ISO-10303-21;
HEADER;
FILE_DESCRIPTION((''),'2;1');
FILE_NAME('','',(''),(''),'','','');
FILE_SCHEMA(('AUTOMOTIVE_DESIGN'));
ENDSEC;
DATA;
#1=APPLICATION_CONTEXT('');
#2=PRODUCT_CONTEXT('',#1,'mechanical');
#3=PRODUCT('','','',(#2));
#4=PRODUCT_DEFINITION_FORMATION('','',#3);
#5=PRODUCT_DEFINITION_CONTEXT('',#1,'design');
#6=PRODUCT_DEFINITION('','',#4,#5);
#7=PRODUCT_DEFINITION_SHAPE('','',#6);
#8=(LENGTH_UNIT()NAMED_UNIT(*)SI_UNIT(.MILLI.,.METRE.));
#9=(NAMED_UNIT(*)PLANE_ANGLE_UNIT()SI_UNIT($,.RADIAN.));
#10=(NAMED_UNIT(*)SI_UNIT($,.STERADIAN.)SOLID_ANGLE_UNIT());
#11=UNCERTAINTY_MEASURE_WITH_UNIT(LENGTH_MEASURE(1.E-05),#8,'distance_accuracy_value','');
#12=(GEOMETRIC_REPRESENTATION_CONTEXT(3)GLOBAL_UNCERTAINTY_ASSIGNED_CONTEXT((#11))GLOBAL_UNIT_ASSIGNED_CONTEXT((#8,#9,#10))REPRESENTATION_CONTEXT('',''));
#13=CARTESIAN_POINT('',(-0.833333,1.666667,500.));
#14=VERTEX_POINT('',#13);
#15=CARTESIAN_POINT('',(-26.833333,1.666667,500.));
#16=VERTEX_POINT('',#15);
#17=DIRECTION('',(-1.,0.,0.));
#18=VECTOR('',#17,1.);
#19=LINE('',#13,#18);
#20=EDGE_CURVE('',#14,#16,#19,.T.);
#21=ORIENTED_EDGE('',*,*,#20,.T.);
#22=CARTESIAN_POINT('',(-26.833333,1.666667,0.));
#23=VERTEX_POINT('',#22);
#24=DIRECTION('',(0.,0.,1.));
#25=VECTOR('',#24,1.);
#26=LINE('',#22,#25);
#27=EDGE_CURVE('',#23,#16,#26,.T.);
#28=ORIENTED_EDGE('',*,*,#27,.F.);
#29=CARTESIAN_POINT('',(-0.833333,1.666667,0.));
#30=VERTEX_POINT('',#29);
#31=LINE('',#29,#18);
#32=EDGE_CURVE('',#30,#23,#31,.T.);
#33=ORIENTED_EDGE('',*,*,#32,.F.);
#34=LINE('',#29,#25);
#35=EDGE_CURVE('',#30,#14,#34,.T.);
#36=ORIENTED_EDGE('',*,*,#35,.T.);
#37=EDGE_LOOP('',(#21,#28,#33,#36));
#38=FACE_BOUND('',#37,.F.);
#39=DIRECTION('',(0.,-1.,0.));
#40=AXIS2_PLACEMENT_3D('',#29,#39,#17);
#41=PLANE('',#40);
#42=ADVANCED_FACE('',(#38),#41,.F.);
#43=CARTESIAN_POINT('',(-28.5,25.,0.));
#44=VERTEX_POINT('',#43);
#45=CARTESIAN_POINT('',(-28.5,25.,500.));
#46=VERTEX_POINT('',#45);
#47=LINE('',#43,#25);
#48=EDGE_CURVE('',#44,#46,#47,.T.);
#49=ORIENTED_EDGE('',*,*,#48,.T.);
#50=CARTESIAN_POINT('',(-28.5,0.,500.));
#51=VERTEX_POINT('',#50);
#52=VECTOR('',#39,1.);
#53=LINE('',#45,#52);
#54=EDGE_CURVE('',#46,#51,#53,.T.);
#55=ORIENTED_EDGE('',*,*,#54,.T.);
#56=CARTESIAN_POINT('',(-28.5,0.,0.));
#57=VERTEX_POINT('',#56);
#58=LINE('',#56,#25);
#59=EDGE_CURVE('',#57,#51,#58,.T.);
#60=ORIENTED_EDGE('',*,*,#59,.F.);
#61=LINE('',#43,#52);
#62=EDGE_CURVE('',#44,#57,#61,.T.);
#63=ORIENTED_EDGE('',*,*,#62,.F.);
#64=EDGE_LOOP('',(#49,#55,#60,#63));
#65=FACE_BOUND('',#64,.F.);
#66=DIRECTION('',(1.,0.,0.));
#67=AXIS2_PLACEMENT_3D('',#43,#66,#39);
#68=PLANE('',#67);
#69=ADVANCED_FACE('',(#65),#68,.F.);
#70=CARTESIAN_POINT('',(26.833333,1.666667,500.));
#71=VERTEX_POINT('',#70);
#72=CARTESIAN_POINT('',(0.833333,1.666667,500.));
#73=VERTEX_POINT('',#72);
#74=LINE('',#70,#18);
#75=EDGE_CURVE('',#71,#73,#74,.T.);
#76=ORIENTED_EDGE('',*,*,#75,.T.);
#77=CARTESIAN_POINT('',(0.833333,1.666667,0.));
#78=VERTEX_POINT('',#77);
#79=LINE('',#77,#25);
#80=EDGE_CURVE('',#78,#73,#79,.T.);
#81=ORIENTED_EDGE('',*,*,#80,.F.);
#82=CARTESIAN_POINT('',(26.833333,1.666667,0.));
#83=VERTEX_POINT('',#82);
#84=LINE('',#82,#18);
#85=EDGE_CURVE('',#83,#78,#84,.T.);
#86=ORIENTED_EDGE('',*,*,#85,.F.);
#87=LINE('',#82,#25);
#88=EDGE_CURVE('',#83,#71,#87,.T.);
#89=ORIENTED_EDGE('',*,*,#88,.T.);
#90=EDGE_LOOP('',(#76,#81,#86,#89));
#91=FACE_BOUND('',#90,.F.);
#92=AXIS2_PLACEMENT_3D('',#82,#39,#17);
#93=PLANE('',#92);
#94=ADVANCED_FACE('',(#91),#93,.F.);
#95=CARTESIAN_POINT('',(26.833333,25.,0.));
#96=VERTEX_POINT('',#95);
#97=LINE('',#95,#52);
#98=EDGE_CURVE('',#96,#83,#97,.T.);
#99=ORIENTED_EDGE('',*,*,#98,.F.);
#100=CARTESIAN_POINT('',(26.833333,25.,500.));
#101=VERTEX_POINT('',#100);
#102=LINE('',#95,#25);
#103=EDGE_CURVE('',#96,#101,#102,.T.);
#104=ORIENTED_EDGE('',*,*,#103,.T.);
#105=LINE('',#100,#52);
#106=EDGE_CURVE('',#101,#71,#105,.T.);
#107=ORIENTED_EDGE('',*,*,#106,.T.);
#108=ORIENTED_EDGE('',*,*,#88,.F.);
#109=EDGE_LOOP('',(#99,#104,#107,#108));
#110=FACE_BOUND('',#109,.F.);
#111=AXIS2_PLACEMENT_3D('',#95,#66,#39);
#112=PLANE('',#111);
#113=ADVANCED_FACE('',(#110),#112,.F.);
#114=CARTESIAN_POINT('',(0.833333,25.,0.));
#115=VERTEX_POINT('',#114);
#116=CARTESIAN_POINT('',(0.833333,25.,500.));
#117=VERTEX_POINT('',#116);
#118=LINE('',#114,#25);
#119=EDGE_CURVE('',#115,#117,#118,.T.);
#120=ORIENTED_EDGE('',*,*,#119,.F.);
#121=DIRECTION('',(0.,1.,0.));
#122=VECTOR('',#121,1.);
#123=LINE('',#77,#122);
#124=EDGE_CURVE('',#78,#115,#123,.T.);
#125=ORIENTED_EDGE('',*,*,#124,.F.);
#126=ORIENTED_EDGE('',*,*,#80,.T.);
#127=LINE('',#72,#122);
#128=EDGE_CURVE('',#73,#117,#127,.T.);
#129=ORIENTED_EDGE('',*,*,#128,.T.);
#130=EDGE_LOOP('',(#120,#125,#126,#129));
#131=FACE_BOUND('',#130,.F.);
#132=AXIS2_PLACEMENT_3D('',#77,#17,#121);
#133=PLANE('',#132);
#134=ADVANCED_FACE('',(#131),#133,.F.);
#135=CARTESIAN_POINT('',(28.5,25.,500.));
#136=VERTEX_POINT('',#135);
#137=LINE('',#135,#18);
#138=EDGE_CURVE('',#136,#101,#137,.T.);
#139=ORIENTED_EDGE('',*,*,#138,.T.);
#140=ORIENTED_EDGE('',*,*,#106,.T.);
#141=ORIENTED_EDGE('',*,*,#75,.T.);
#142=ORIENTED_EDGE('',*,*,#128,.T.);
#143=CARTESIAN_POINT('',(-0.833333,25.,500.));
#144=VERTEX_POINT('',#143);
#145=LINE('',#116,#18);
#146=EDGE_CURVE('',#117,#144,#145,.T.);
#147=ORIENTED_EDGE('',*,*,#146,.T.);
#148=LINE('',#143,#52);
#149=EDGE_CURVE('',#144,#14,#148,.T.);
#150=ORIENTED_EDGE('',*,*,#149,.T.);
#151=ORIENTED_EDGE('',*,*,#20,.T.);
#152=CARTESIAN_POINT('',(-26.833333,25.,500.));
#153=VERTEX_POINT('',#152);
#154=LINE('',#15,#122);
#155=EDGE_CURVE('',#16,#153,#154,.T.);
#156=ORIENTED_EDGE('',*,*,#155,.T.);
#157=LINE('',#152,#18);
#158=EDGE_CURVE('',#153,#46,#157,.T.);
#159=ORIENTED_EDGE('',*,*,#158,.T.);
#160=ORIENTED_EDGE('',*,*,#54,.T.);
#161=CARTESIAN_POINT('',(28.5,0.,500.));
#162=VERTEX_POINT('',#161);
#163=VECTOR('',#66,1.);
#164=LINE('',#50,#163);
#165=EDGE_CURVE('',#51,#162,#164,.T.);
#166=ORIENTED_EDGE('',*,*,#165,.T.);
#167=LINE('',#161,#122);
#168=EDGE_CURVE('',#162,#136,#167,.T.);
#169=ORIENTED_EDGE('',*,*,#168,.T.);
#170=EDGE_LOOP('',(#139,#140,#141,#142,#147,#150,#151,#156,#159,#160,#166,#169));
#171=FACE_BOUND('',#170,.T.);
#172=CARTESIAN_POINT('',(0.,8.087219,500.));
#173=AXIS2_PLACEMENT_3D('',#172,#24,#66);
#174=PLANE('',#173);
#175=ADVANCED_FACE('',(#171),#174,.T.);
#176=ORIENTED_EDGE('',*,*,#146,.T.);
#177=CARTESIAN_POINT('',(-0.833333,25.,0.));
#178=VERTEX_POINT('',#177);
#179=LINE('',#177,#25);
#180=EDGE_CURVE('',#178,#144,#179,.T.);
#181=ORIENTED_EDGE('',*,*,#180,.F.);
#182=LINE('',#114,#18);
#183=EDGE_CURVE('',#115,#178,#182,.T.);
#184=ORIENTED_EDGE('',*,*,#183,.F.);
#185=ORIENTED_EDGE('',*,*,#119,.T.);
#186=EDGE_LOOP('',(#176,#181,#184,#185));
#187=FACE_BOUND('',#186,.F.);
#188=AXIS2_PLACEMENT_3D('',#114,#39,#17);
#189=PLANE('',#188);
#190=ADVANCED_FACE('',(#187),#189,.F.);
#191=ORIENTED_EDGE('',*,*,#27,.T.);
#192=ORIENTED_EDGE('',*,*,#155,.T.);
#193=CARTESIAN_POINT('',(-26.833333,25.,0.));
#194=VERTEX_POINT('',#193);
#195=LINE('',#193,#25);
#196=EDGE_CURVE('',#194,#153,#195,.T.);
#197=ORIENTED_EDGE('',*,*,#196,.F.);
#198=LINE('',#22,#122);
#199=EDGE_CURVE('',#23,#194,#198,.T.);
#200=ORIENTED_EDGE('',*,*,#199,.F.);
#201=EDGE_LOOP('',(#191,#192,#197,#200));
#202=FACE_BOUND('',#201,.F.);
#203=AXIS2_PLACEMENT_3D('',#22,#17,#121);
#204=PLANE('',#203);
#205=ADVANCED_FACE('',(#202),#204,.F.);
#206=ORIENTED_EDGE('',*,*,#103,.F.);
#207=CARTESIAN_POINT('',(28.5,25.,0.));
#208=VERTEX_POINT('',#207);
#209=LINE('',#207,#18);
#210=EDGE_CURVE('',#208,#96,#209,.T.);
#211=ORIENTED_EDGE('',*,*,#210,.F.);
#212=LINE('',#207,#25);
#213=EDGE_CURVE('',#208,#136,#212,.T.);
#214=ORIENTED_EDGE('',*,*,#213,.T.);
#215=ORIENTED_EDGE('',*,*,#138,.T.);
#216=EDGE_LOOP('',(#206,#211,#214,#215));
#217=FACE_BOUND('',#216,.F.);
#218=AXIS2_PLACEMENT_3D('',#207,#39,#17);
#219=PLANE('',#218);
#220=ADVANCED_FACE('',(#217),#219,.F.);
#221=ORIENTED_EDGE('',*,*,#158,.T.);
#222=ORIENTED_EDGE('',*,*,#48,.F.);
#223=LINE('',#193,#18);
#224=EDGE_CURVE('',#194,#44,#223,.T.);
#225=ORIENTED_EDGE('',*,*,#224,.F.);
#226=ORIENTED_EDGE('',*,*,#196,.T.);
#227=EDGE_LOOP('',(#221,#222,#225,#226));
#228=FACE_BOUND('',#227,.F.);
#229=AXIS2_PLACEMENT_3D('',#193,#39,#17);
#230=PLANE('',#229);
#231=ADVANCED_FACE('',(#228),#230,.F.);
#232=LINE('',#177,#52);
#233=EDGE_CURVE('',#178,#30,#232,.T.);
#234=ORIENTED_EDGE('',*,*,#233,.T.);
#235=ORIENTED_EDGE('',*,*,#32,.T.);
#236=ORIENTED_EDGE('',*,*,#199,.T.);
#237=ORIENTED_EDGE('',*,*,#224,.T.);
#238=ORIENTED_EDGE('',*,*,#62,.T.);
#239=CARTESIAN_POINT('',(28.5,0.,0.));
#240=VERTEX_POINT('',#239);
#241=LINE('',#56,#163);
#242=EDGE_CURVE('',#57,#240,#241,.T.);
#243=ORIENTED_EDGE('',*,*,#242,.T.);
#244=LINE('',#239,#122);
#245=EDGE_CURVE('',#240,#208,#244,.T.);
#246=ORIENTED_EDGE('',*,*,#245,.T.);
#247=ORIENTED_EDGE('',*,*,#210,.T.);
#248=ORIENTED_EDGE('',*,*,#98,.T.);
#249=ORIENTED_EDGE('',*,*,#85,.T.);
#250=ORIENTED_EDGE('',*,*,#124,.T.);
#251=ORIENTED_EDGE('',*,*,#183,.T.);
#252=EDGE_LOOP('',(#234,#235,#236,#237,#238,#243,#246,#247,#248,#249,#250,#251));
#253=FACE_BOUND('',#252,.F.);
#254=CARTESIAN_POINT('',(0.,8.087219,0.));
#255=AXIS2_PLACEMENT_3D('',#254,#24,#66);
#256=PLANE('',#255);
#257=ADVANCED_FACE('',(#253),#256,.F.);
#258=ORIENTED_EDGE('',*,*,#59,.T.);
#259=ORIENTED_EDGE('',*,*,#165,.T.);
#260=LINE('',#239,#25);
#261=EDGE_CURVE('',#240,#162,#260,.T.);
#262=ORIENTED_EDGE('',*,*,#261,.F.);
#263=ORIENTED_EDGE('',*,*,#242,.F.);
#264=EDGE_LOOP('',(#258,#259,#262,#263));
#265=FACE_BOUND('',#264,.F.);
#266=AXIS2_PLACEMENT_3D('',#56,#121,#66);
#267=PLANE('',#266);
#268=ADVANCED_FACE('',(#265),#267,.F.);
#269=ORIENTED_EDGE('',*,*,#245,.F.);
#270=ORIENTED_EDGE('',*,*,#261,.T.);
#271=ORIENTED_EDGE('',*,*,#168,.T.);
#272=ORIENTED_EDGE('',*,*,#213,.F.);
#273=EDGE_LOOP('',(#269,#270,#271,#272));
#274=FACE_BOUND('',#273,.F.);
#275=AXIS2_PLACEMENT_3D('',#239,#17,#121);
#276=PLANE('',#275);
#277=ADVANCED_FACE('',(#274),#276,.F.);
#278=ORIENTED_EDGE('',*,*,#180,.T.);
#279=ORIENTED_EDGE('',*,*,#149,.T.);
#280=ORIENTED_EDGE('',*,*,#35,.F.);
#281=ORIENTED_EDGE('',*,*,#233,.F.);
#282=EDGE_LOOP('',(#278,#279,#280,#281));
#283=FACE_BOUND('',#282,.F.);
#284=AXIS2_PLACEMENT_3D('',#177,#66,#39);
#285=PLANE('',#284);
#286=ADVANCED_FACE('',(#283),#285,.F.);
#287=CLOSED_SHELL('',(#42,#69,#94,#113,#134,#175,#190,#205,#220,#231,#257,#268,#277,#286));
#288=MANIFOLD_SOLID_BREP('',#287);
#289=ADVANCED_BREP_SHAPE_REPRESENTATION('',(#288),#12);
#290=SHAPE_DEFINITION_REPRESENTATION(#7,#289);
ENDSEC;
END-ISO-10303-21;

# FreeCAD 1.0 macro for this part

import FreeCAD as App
import Part
import Sketcher

V = App.Vector
Q = App.Units.Quantity

doc = App.newDocument("Part")
params = doc.addObject("Spreadsheet::Sheet", "Params")
for row, (alias, value) in enumerate([
    ("sketch1_width", "57 mm"),
    ("sketch1_width2", "26 mm"),
    ("sketch1_height", "25 mm"),
    ("pad1_length", "500 mm"),
], start=1):
    params.set(f"A{row}", alias)
    params.set(f"B{row}", "=" + value)
    params.setAlias(f"B{row}", alias)

body = doc.addObject("PartDesign::Body", "Body")

sketch1 = body.newObject("Sketcher::SketchObject", "Sketch")
sketch1.AttachmentSupport = (doc.getObject("XY_Plane"), [""])
sketch1.MapMode = "FlatFace"
sketch1.addGeometry(Part.LineSegment(V(-28.5, 25, 0), V(-28.5, 0, 0)), False)
sketch1.addGeometry(Part.LineSegment(V(-28.5, 0, 0), V(28.5, 0, 0)), False)
sketch1.addGeometry(Part.LineSegment(V(28.5, 0, 0), V(28.5, 25, 0)), False)
sketch1.addGeometry(Part.LineSegment(V(28.5, 25, 0), V(26.833333, 25, 0)), False)
sketch1.addGeometry(Part.LineSegment(V(26.833333, 25, 0), V(26.833333, 1.666667, 0)), False)
sketch1.addGeometry(Part.LineSegment(V(26.833333, 1.666667, 0), V(0.833333, 1.666667, 0)), False)
sketch1.addGeometry(Part.LineSegment(V(0.833333, 1.666667, 0), V(0.833333, 25, 0)), False)
sketch1.addGeometry(Part.LineSegment(V(0.833333, 25, 0), V(-0.833333, 25, 0)), False)
sketch1.addGeometry(Part.LineSegment(V(-0.833333, 25, 0), V(-0.833333, 1.666667, 0)), False)
sketch1.addGeometry(Part.LineSegment(V(-0.833333, 1.666667, 0), V(-26.833333, 1.666667, 0)), False)
sketch1.addGeometry(Part.LineSegment(V(-26.833333, 1.666667, 0), V(-26.833333, 25, 0)), False)
sketch1.addGeometry(Part.LineSegment(V(-26.833333, 25, 0), V(-28.5, 25, 0)), False)
sketch1.addConstraint(Sketcher.Constraint("Coincident", 0, 2, 1, 1))
sketch1.addConstraint(Sketcher.Constraint("Coincident", 1, 2, 2, 1))
sketch1.addConstraint(Sketcher.Constraint("Coincident", 2, 2, 3, 1))
sketch1.addConstraint(Sketcher.Constraint("Coincident", 3, 2, 4, 1))
sketch1.addConstraint(Sketcher.Constraint("Coincident", 4, 2, 5, 1))
sketch1.addConstraint(Sketcher.Constraint("Coincident", 5, 2, 6, 1))
sketch1.addConstraint(Sketcher.Constraint("Coincident", 6, 2, 7, 1))
sketch1.addConstraint(Sketcher.Constraint("Coincident", 7, 2, 8, 1))
sketch1.addConstraint(Sketcher.Constraint("Coincident", 8, 2, 9, 1))
sketch1.addConstraint(Sketcher.Constraint("Coincident", 9, 2, 10, 1))
sketch1.addConstraint(Sketcher.Constraint("Coincident", 10, 2, 11, 1))
sketch1.addConstraint(Sketcher.Constraint("Coincident", 11, 2, 0, 1))
sketch1.addConstraint(Sketcher.Constraint("Vertical", 0))
sketch1.addConstraint(Sketcher.Constraint("Horizontal", 1))
sketch1.addConstraint(Sketcher.Constraint("Vertical", 2))
sketch1.addConstraint(Sketcher.Constraint("Horizontal", 3))
sketch1.addConstraint(Sketcher.Constraint("Vertical", 4))
sketch1.addConstraint(Sketcher.Constraint("Horizontal", 5))
sketch1.addConstraint(Sketcher.Constraint("Vertical", 6))
sketch1.addConstraint(Sketcher.Constraint("Horizontal", 7))
sketch1.addConstraint(Sketcher.Constraint("Vertical", 8))
sketch1.addConstraint(Sketcher.Constraint("Horizontal", 9))
sketch1.addConstraint(Sketcher.Constraint("Vertical", 10))
sketch1.addConstraint(Sketcher.Constraint("Horizontal", 11))
sketch1.addConstraint(Sketcher.Constraint("Symmetric", 0, 2, 1, 2, -1, 1))
sketch1.addConstraint(Sketcher.Constraint("Symmetric", 5, 2, 8, 2, -2))
sketch1.addConstraint(Sketcher.Constraint("Symmetric", 3, 2, 10, 2, -2))
sketch1.addConstraint(Sketcher.Constraint("Horizontal", 3, 2, 6, 2))
sketch1.addConstraint(Sketcher.Constraint("Equal", 3, 7))
sketch1.addConstraint(Sketcher.Constraint("DistanceX", 1, 1, 1, 2, Q("57 mm")))
sketch1.addConstraint(Sketcher.Constraint("DistanceX", 5, 2, 5, 1, Q("26 mm")))
sketch1.addConstraint(Sketcher.Constraint("DistanceY", 0, 2, 0, 1, Q("25 mm")))
sketch1.addConstraint(Sketcher.Constraint("DistanceY", 4, 2, 4, 1, Q("23.333333 mm")))
sketch1.setExpression("Constraints[29]", "Params.sketch1_width")
sketch1.setExpression("Constraints[30]", "Params.sketch1_width2")
sketch1.setExpression("Constraints[31]", "Params.sketch1_height")
pad1 = body.newObject("PartDesign::Pad", "Pad")
pad1.Profile = sketch1
pad1.setExpression("Length", "Params.pad1_length")

doc.recompute()
